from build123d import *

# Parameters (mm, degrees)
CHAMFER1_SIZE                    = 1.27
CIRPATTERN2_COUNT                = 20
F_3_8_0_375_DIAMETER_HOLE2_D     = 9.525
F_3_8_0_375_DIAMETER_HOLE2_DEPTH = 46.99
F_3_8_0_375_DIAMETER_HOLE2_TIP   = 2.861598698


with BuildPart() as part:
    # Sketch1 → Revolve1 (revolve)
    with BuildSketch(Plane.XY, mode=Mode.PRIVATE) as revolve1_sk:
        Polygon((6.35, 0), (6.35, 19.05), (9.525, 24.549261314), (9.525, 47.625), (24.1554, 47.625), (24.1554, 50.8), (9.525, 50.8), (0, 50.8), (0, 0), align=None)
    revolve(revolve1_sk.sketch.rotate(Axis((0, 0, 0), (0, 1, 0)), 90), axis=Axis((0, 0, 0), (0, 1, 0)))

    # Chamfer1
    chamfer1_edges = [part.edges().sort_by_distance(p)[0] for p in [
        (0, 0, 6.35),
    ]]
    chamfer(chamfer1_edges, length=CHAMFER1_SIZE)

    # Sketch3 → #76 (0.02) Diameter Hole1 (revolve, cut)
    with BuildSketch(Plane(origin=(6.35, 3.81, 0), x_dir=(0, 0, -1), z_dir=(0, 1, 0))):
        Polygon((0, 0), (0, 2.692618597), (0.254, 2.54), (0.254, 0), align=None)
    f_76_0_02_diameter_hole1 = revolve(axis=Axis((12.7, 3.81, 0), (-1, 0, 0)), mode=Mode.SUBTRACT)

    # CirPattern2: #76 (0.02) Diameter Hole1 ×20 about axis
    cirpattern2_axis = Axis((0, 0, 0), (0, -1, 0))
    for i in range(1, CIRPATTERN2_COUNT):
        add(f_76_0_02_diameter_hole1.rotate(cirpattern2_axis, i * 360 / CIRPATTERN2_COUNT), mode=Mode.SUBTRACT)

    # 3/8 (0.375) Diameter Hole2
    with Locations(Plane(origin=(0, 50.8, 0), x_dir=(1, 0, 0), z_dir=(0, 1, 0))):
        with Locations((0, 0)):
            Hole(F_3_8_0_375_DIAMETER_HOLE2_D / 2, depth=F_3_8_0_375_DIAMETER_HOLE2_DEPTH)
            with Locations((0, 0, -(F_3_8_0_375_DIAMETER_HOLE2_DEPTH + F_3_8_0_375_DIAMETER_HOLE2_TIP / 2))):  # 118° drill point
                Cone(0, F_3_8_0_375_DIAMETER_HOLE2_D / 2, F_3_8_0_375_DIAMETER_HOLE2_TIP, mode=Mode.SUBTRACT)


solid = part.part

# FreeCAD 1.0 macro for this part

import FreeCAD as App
import Part
import Sketcher

V = App.Vector
Q = App.Units.Quantity


def edges_at(feature, points):
    """Names of the edges that pass closest to the given points."""
    edges = feature.Shape.Edges
    near = lambda p: min(range(len(edges)), key=lambda i: edges[i].distToShape(Part.Vertex(*p))[0])
    return sorted({f"Edge{near(p) + 1}" for p in points})

doc = App.newDocument("Part")
params = doc.addObject("Spreadsheet::Sheet", "Params")
for row, (alias, value) in enumerate([
    ("sketch1_height", "2 in"),
    ("sketch1_width", "0.25 in"),
    ("sketch1_height2", "0.75 in"),
    ("sketch1_length", "0.25 in"),
    ("sketch1_width2", "0.576 in"),
    ("revolution_angle", "360 deg"),
    ("chamfer_size", "0.05 in"),
    ("sketch2_width", "0.1 in"),
    ("sketch2_height", "0.01 in"),
    ("groove_angle", "360 deg"),
    ("sketch3_diameter", "0.375 in"),
    ("hole_diameter", "0.375 in"),
    ("hole_depth", "1.85 in"),
], start=1):
    params.set(f"A{row}", alias)
    params.set(f"B{row}", "=" + value)
    params.setAlias(f"B{row}", alias)

body = doc.addObject("PartDesign::Body", "Body")

sketch1 = doc.addObject("Sketcher::SketchObject", "Sketch")
body.addObject(sketch1)
sketch1.AttachmentSupport = (doc.XY_Plane, [""])
sketch1.MapMode = "FlatFace"
sketch1.addGeometry(Part.LineSegment(V(6.3, 0, 0), V(6.3, 19.1, 0)), False)
sketch1.addGeometry(Part.LineSegment(V(6.3, 19.1, 0), V(9.5, 24.5, 0)), False)
sketch1.addGeometry(Part.LineSegment(V(9.5, 24.5, 0), V(9.5, 47.6, 0)), False)
sketch1.addGeometry(Part.LineSegment(V(9.5, 47.6, 0), V(24.2, 47.6, 0)), False)
sketch1.addGeometry(Part.LineSegment(V(24.2, 47.6, 0), V(24.2, 50.8, 0)), False)
sketch1.addGeometry(Part.LineSegment(V(24.2, 50.8, 0), V(0, 50.8, 0)), False)
sketch1.addGeometry(Part.LineSegment(V(0, 50.8, 0), V(0, 0, 0)), False)
sketch1.addGeometry(Part.LineSegment(V(0, 0, 0), V(6.3, 0, 0)), False)
sketch1.addConstraint(Sketcher.Constraint("Coincident", 0, 2, 1, 1))
sketch1.addConstraint(Sketcher.Constraint("Coincident", 1, 2, 2, 1))
sketch1.addConstraint(Sketcher.Constraint("Coincident", 2, 2, 3, 1))
sketch1.addConstraint(Sketcher.Constraint("Coincident", 3, 2, 4, 1))
sketch1.addConstraint(Sketcher.Constraint("Coincident", 4, 2, 5, 1))
sketch1.addConstraint(Sketcher.Constraint("Coincident", 5, 2, 6, 1))
sketch1.addConstraint(Sketcher.Constraint("Coincident", 6, 2, 7, 1))
sketch1.addConstraint(Sketcher.Constraint("Coincident", 7, 2, 0, 1))
sketch1.addConstraint(Sketcher.Constraint("Vertical", 0))
sketch1.addConstraint(Sketcher.Constraint("Vertical", 2))
sketch1.addConstraint(Sketcher.Constraint("Horizontal", 3))
sketch1.addConstraint(Sketcher.Constraint("Vertical", 4))
sketch1.addConstraint(Sketcher.Constraint("Horizontal", 5))
sketch1.addConstraint(Sketcher.Constraint("Vertical", 6))
sketch1.addConstraint(Sketcher.Constraint("Horizontal", 7))
sketch1.addConstraint(Sketcher.Constraint("Coincident", 6, 2, -1, 1))
sketch1.addConstraint(Sketcher.Constraint("DistanceY", 6, 2, 6, 1, Q("2 in")))
sketch1.addConstraint(Sketcher.Constraint("Angle", 1, Q("60 deg")))
sketch1.addConstraint(Sketcher.Constraint("DistanceX", 7, 1, 7, 2, Q("0.25 in")))
sketch1.addConstraint(Sketcher.Constraint("DistanceY", 0, 1, 0, 2, Q("0.75 in")))
sketch1.addConstraint(Sketcher.Constraint("Distance", 1, Q("0.25 in")))
sketch1.addConstraint(Sketcher.Constraint("DistanceX", 3, 1, 3, 2, Q("0.576 in")))
sketch1.addConstraint(Sketcher.Constraint("DistanceY", 4, 1, 4, 2, Q("0.125 in")))
sketch1.setExpression("Constraints[16]", "Params.sketch1_height")
sketch1.setExpression("Constraints[18]", "Params.sketch1_width")
sketch1.setExpression("Constraints[19]", "Params.sketch1_height2")
sketch1.setExpression("Constraints[20]", "Params.sketch1_length")
sketch1.setExpression("Constraints[21]", "Params.sketch1_width2")
revolution = doc.addObject("PartDesign::Revolution", "Revolution")
body.addObject(revolution)
revolution.Profile = sketch1
revolution.ReferenceAxis = (sketch1, ["V_Axis"])
revolution.setExpression("Angle", "Params.revolution_angle")
doc.recompute()

chamfer = doc.addObject("PartDesign::Chamfer", "Chamfer")
body.addObject(chamfer)
chamfer.Base = (revolution, edges_at(revolution, [(0, 0, 6.35)]))
chamfer.setExpression("Size", "Params.chamfer_size")

sketch2 = doc.addObject("Sketcher::SketchObject", "Sketch001")
body.addObject(sketch2)
sketch2.AttachmentSupport = (doc.XZ_Plane, [""])
sketch2.MapMode = "FlatFace"
sketch2.AttachmentOffset = App.Placement(V(0, 0, -0.15 * 25.4), App.Rotation())
sketch2.addGeometry(Part.LineSegment(V(3.66, 0, 0), V(6.35, 0, 0)), False)
sketch2.addGeometry(Part.LineSegment(V(6.35, 0, 0), V(6.35, -0.25, 0)), False)
sketch2.addGeometry(Part.LineSegment(V(6.35, -0.25, 0), V(3.81, -0.25, 0)), False)
sketch2.addGeometry(Part.LineSegment(V(3.81, -0.25, 0), V(3.66, 0, 0)), False)
sketch2.addConstraint(Sketcher.Constraint("Coincident", 0, 2, 1, 1))
sketch2.addConstraint(Sketcher.Constraint("Coincident", 1, 2, 2, 1))
sketch2.addConstraint(Sketcher.Constraint("Coincident", 2, 2, 3, 1))
sketch2.addConstraint(Sketcher.Constraint("Coincident", 3, 2, 0, 1))
sketch2.addConstraint(Sketcher.Constraint("Horizontal", 0))
sketch2.addConstraint(Sketcher.Constraint("Vertical", 1))
sketch2.addConstraint(Sketcher.Constraint("Horizontal", 2))
sketch2.addConstraint(Sketcher.Constraint("PointOnObject", 0, 2, -1))
sketch2.addConstraint(Sketcher.Constraint("DistanceX", 2, 2, 2, 1, Q("0.1 in")))
sketch2.addConstraint(Sketcher.Constraint("Angle", 3, Q("121 deg")))
sketch2.addConstraint(Sketcher.Constraint("DistanceY", 1, 2, 1, 1, Q("0.01 in")))
sketch2.addConstraint(Sketcher.Constraint("DistanceX", -1, 1, 0, 2, Q("0.25 in")))
sketch2.setExpression("Constraints[8]", "Params.sketch2_width")
sketch2.setExpression("Constraints[10]", "Params.sketch2_height")
groove = doc.addObject("PartDesign::Groove", "Groove")
body.addObject(groove)
groove.Profile = sketch2
groove.ReferenceAxis = (sketch2, ["H_Axis"])
groove.setExpression("Angle", "Params.groove_angle")
doc.recompute()

polarpattern = doc.addObject("PartDesign::PolarPattern", "PolarPattern")
body.addObject(polarpattern)
polarpattern.Originals = [groove]
polarpattern.Axis = (doc.Y_Axis, [""])
polarpattern.Angle = 360
polarpattern.Occurrences = 20
body.Tip = polarpattern

sketch3 = doc.addObject("Sketcher::SketchObject", "Sketch002")
body.addObject(sketch3)
sketch3.AttachmentSupport = (doc.XZ_Plane, [""])
sketch3.MapMode = "FlatFace"
sketch3.AttachmentOffset = App.Placement(V(0, 0, -2 * 25.4), App.Rotation())
sketch3.addGeometry(Part.Circle(V(0, 0, 0), V(0, 0, 1), 4.8), False)
sketch3.addConstraint(Sketcher.Constraint("Coincident", 0, 3, -1, 1))
sketch3.addConstraint(Sketcher.Constraint("Diameter", 0, Q("0.375 in")))
sketch3.setExpression("Constraints[1]", "Params.sketch3_diameter")
doc.recompute()
hole = doc.addObject("PartDesign::Hole", "Hole")
body.addObject(hole)
hole.Profile = sketch3
hole.ThreadType = "None"
hole.setExpression("Diameter", "Params.hole_diameter")
hole.DepthType = "Dimension"
hole.setExpression("Depth", "Params.hole_depth")
hole.DrillPoint = "Angled"
hole.DrillPointAngle = 118
hole.Reversed = True

doc.recompute()
